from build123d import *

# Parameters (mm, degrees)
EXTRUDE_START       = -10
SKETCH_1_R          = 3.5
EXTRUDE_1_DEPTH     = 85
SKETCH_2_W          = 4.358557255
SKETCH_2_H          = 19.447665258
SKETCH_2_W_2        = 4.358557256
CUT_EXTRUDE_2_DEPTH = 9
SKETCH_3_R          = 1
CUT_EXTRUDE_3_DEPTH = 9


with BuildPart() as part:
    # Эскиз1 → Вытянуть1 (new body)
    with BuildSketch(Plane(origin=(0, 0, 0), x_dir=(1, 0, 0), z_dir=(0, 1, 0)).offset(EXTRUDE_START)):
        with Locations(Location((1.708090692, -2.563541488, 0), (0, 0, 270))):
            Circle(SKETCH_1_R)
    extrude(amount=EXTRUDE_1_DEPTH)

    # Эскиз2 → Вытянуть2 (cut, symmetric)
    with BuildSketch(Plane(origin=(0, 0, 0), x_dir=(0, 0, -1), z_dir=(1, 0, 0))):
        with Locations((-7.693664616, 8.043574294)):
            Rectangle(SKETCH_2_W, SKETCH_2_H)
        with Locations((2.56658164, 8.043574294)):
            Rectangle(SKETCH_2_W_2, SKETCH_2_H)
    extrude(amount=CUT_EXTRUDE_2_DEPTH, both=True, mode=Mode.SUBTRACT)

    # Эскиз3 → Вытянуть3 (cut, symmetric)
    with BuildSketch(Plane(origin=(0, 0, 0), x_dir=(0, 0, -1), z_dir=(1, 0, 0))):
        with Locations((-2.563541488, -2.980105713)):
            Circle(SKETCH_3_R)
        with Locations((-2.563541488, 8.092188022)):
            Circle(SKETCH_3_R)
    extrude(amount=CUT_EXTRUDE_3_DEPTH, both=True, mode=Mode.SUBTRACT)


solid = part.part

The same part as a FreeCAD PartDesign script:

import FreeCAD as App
import Part
import Sketcher

doc = App.newDocument("Part")
body = doc.addObject("PartDesign::Body", "Body")

sketch1 = body.newObject("Sketcher::SketchObject", "Sketch")
sketch1.AttachmentSupport = (doc.getObject("XZ_Plane"), [""])
sketch1.MapMode = "FlatFace"
sketch1.AttachmentOffset = App.Placement(App.Vector(0, 0, 10), App.Rotation())
sketch1.addGeometry(Part.Circle(App.Vector(1.7, 2.6, 0), App.Vector(0, 0, 1), 3.5), False)
sketch1.addConstraint([
    Sketcher.Constraint("Diameter", 0, 7.0),
    Sketcher.Constraint("DistanceX", -1, 1, 0, 3, 1.708091),
    Sketcher.Constraint("DistanceY", -1, 1, 0, 3, 2.563541),
])
pad1 = body.newObject("PartDesign::Pad", "Pad")
pad1.Profile = sketch1
pad1.Length = 85
pad1.Reversed = True

sketch2 = body.newObject("Sketcher::SketchObject", "Sketch001")
sketch2.AttachmentSupport = (doc.getObject("YZ_Plane"), [""])
sketch2.MapMode = "FlatFace"
sketch2.addGeometry([
    Part.LineSegment(App.Vector(17.8, 9.9, 0), App.Vector(-1.7, 9.9, 0)),
    Part.LineSegment(App.Vector(-1.7, 9.9, 0), App.Vector(-1.7, 5.5, 0)),
    Part.LineSegment(App.Vector(-1.7, 5.5, 0), App.Vector(17.8, 5.5, 0)),
    Part.LineSegment(App.Vector(17.8, 5.5, 0), App.Vector(17.8, 9.9, 0)),
    Part.LineSegment(App.Vector(17.8, -0.4, 0), App.Vector(-1.7, -0.4, 0)),
    Part.LineSegment(App.Vector(-1.7, -0.4, 0), App.Vector(-1.7, -4.7, 0)),
    Part.LineSegment(App.Vector(-1.7, -4.7, 0), App.Vector(17.8, -4.7, 0)),
    Part.LineSegment(App.Vector(17.8, -4.7, 0), App.Vector(17.8, -0.4, 0)),
], False)
sketch2.addConstraint([
    Sketcher.Constraint("Coincident", 0, 2, 1, 1),
    Sketcher.Constraint("Coincident", 1, 2, 2, 1),
    Sketcher.Constraint("Coincident", 2, 2, 3, 1),
    Sketcher.Constraint("Coincident", 3, 2, 0, 1),
    Sketcher.Constraint("Coincident", 4, 2, 5, 1),
    Sketcher.Constraint("Coincident", 5, 2, 6, 1),
    Sketcher.Constraint("Coincident", 6, 2, 7, 1),
    Sketcher.Constraint("Coincident", 7, 2, 4, 1),
    Sketcher.Constraint("Horizontal", 0),
    Sketcher.Constraint("Vertical", 1),
    Sketcher.Constraint("Horizontal", 2),
    Sketcher.Constraint("Vertical", 3),
    Sketcher.Constraint("Horizontal", 4),
    Sketcher.Constraint("Vertical", 5),
    Sketcher.Constraint("Horizontal", 6),
    Sketcher.Constraint("Vertical", 7),
    Sketcher.Constraint("Vertical", 1, 2, 4, 2),
    Sketcher.Constraint("Vertical", 3, 2, 6, 2),
    Sketcher.Constraint("Equal", 3, 5),
    Sketcher.Constraint("DistanceX", 0, 2, 0, 1, 19.447665),
    Sketcher.Constraint("DistanceY", 1, 2, 1, 1, 4.358557),
    Sketcher.Constraint("DistanceX", 0, 2, -1, 1, 1.680258),
    Sketcher.Constraint("DistanceY", 5, 2, -1, 1, 4.74586),
    Sketcher.Constraint("DistanceY", 4, 2, 1, 2, 5.901689),
])
pocket1 = body.newObject("PartDesign::Pocket", "Pocket")
pocket1.Profile = sketch2
pocket1.Length = 18
pocket1.Midplane = True

sketch3 = body.newObject("Sketcher::SketchObject", "Sketch002")
sketch3.AttachmentSupport = (doc.getObject("YZ_Plane"), [""])
sketch3.MapMode = "FlatFace"
sketch3.addGeometry([
    Part.Circle(App.Vector(-3, 2.6, 0), App.Vector(0, 0, 1), 1),
    Part.Circle(App.Vector(8.1, 2.6, 0), App.Vector(0, 0, 1), 1),
], False)
sketch3.addConstraint([
    Sketcher.Constraint("Equal", 0, 1),
    Sketcher.Constraint("Horizontal", 0, 3, 1, 3),
    Sketcher.Constraint("Diameter", 0, 2.0),
    Sketcher.Constraint("DistanceY", -1, 1, 0, 3, 2.563541),
    Sketcher.Constraint("DistanceX", -1, 1, 1, 3, 8.092188),
    Sketcher.Constraint("DistanceX", 0, 3, -1, 1, 2.980106),
])
pocket2 = body.newObject("PartDesign::Pocket", "Pocket001")
pocket2.Profile = sketch3
pocket2.Length = 18
pocket2.Midplane = True

doc.recompute()
